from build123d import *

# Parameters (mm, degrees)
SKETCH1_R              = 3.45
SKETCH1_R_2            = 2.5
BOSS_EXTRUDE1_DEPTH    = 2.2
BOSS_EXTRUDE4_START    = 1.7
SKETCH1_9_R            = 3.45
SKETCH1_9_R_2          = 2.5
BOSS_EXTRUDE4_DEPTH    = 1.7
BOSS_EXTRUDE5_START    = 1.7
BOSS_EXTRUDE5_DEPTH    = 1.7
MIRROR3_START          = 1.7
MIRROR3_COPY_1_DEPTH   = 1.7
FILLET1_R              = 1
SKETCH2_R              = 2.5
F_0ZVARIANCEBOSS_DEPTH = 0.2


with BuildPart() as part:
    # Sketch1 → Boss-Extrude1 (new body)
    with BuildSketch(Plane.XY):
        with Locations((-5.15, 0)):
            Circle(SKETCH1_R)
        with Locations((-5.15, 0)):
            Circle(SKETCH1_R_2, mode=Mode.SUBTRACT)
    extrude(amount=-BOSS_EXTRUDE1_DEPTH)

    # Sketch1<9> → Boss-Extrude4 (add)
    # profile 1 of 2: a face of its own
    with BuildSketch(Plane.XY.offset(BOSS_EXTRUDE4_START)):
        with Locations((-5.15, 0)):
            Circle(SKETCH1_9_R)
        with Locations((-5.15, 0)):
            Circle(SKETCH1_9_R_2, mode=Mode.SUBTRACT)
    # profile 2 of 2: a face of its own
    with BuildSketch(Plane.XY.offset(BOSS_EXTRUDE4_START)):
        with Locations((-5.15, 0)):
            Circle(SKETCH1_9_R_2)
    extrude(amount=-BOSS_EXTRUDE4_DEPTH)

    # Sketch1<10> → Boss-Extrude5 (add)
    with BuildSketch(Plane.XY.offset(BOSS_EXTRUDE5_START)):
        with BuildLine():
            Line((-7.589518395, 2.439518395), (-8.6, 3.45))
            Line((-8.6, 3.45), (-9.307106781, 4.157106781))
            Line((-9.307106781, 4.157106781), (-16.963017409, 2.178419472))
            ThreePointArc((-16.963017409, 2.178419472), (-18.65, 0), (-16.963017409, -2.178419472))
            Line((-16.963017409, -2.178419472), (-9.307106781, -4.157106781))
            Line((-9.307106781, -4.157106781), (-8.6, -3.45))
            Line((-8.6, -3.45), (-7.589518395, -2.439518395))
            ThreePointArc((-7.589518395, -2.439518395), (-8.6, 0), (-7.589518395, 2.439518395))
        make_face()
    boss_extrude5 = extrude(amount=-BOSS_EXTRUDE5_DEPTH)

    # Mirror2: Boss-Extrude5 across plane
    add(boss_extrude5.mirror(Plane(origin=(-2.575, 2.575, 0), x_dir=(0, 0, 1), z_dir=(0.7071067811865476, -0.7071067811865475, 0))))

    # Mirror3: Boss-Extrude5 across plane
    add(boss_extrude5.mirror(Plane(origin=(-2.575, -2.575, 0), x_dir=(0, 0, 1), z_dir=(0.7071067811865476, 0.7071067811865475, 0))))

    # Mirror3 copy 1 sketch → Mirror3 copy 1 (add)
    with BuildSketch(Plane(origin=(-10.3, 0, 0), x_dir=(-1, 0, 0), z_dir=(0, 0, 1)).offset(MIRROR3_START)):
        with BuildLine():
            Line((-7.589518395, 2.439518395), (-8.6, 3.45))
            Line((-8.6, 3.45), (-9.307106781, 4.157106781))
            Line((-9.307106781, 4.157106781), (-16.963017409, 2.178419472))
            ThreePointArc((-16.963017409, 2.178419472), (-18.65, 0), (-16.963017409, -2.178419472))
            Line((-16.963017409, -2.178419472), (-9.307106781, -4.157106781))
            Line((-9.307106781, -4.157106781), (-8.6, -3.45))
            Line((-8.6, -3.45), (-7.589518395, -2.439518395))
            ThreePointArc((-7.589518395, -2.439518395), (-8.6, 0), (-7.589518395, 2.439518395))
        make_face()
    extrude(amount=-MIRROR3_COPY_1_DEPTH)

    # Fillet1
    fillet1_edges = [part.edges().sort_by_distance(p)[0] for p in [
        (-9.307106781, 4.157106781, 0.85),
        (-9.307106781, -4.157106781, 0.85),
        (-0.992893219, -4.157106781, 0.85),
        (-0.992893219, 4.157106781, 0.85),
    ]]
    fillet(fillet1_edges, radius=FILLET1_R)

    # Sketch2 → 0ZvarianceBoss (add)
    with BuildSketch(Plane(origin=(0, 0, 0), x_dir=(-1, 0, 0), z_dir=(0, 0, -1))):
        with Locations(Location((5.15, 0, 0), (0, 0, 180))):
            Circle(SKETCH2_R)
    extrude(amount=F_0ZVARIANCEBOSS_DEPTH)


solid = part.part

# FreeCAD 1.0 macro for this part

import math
import FreeCAD as App
import Part
import Sketcher


def edges_at(feature, points):
    """Names of the edges that pass closest to the given points."""
    edges = feature.Shape.Edges
    near = lambda p: min(range(len(edges)), key=lambda i: edges[i].distToShape(Part.Vertex(*p))[0])
    return sorted({f"Edge{near(p) + 1}" for p in points})

doc = App.newDocument("Part")
body = doc.addObject("PartDesign::Body", "Body")

# Sketch on XY plane
sketch1 = body.newObject("Sketcher::SketchObject", "Sketch")
sketch1.AttachmentSupport = (doc.getObject("XY_Plane"), [""])
sketch1.MapMode = "FlatFace"
sketch1.addGeometry([
    Part.Circle(App.Vector(-5.2, 0, 0), App.Vector(0, 0, 1), 3.5),
    Part.Circle(App.Vector(-5.2, 0, 0), App.Vector(0, 0, 1), 2.5),
], False)
sketch1.addConstraint([
    Sketcher.Constraint("Coincident", 1, 3, 0, 3),
    Sketcher.Constraint("PointOnObject", 0, 3, -1),
    Sketcher.Constraint("Diameter", 1, 5.0),
    Sketcher.Constraint("Diameter", 0, 6.9),
    Sketcher.Constraint("DistanceX", 0, 3, -1, 1, 5.15),
])
pad1 = body.newObject("PartDesign::Pad", "Pad")
pad1.Profile = sketch1
pad1.Length = 2.2
pad1.Reversed = True

# Sketch on XY plane
sketch2 = body.newObject("Sketcher::SketchObject", "Sketch001")
sketch2.AttachmentSupport = (doc.getObject("XY_Plane"), [""])
sketch2.MapMode = "FlatFace"
sketch2.AttachmentOffset = App.Placement(App.Vector(0, 0, 1.7), App.Rotation())
sketch2.addGeometry(Part.Circle(App.Vector(-5.2, 0, 0), App.Vector(0, 0, 1), 3.5), False)
sketch2.addConstraint([
    Sketcher.Constraint("PointOnObject", 0, 3, -1),
    Sketcher.Constraint("Diameter", 0, 6.9),
    Sketcher.Constraint("DistanceX", 0, 3, -1, 1, 5.15),
])
pad2 = body.newObject("PartDesign::Pad", "Pad001")
pad2.Profile = sketch2
pad2.Length = 1.7
pad2.Reversed = True

# Sketch on XY plane
sketch3 = body.newObject("Sketcher::SketchObject", "Sketch002")
sketch3.AttachmentSupport = (doc.getObject("XY_Plane"), [""])
sketch3.MapMode = "FlatFace"
sketch3.AttachmentOffset = App.Placement(App.Vector(0, 0, 1.7), App.Rotation())
sketch3.addGeometry([
    Part.LineSegment(App.Vector(-7.6, 2.4, 0), App.Vector(-9.3, 4.2, 0)),  # 0
    Part.LineSegment(App.Vector(-9.3, 4.2, 0), App.Vector(-17, 2.2, 0)),  # 1
    Part.ArcOfCircle(Part.Circle(App.Vector(-16.4, 0, 0), App.Vector(0, 0, 1), 2.2), math.radians(104), math.radians(256)),  # 2
    Part.LineSegment(App.Vector(-17, -2.2, 0), App.Vector(-9.3, -4.2, 0)),  # 3
    Part.LineSegment(App.Vector(-9.3, -4.2, 0), App.Vector(-7.6, -2.4, 0)),  # 4
    Part.ArcOfCircle(Part.Circle(App.Vector(-5.2, 0, 0), App.Vector(0, 0, 1), 3.5), math.radians(135), math.radians(225)),  # 5
], False)
sketch3.addConstraint([
    Sketcher.Constraint("Coincident", 0, 2, 1, 1),
    Sketcher.Constraint("Tangent", 1, 2, 2, 1),
    Sketcher.Constraint("Tangent", 2, 2, 3, 1),
    Sketcher.Constraint("Coincident", 3, 2, 4, 1),
    Sketcher.Constraint("Coincident", 4, 2, 5, 2),
    Sketcher.Constraint("Coincident", 5, 1, 0, 1),
    Sketcher.Constraint("Symmetric", 1, 2, 2, 2, -1),
    Sketcher.Constraint("Symmetric", 4, 2, 5, 1, -1),
    Sketcher.Constraint("Perpendicular", 0, 4),
    Sketcher.Constraint("Vertical", 0, 2, 3, 2),
    Sketcher.Constraint("Radius", 2, 2.25),
    Sketcher.Constraint("Radius", 5, 3.45),
    Sketcher.Constraint("DistanceX", 2, 3, -1, 1, 16.4),
    Sketcher.Constraint("DistanceX", 5, 3, -1, 1, 5.15),
    Sketcher.Constraint("DistanceX", 2, 2, 4, 2, 9.373499),
    Sketcher.Constraint("DistanceY", 4, 2, 2, 2, 0.261099),
])
pad3 = body.newObject("PartDesign::Pad", "Pad002")
pad3.Profile = sketch3
pad3.Length = 1.7
pad3.Reversed = True
doc.recompute()

datumplane = body.newObject("PartDesign::Plane", "DatumPlane")
datumplane.Placement = App.Placement(App.Vector(-2.575, 2.575, 0), App.Rotation(App.Vector(-0.707106781, -0.707106781, 0), App.Vector(0, 0, -1), App.Vector(0.707106781, -0.707106781, 0), "ZXY"))
mirrored = body.newObject("PartDesign::Mirrored", "Mirrored")
mirrored.Originals = [pad3]
mirrored.MirrorPlane = (datumplane, [""])
body.Tip = mirrored
doc.recompute()

datumplane2 = body.newObject("PartDesign::Plane", "DatumPlane001")
datumplane2.Placement = App.Placement(App.Vector(-2.575, -2.575, 0), App.Rotation(App.Vector(0.707106781, -0.707106781, 0), App.Vector(0, 0, -1), App.Vector(0.707106781, 0.707106781, 0), "ZXY"))
mirrored2 = body.newObject("PartDesign::Mirrored", "Mirrored001")
mirrored2.Originals = [pad3]
mirrored2.MirrorPlane = (datumplane2, [""])
body.Tip = mirrored2

# Sketch on XY plane
sketch4 = body.newObject("Sketcher::SketchObject", "Sketch003")
sketch4.AttachmentSupport = (doc.getObject("XY_Plane"), [""])
sketch4.MapMode = "FlatFace"
sketch4.AttachmentOffset = App.Placement(App.Vector(0, 0, 1.7), App.Rotation())
sketch4.addGeometry([
    Part.LineSegment(App.Vector(-2.7, -2.4, 0), App.Vector(-1, -4.2, 0)),  # 0
    Part.LineSegment(App.Vector(-1, -4.2, 0), App.Vector(6.7, -2.2, 0)),  # 1
    Part.ArcOfCircle(Part.Circle(App.Vector(6.1, 0, 0), App.Vector(0, 0, 1), 2.2), math.radians(-76), math.radians(76)),  # 2
    Part.LineSegment(App.Vector(6.7, 2.2, 0), App.Vector(-1, 4.2, 0)),  # 3
    Part.LineSegment(App.Vector(-1, 4.2, 0), App.Vector(-2.7, 2.4, 0)),  # 4
    Part.ArcOfCircle(Part.Circle(App.Vector(-5.2, 0, 0), App.Vector(0, 0, 1), 3.5), math.radians(-45), math.radians(45)),  # 5
], False)
sketch4.addConstraint([
    Sketcher.Constraint("Coincident", 0, 2, 1, 1),
    Sketcher.Constraint("Tangent", 1, 2, 2, 1),
    Sketcher.Constraint("Tangent", 2, 2, 3, 1),
    Sketcher.Constraint("Coincident", 3, 2, 4, 1),
    Sketcher.Constraint("Coincident", 4, 2, 5, 2),
    Sketcher.Constraint("Coincident", 5, 1, 0, 1),
    Sketcher.Constraint("Symmetric", 1, 2, 2, 2, -1),
    Sketcher.Constraint("Symmetric", 4, 2, 5, 1, -1),
    Sketcher.Constraint("Perpendicular", 0, 4),
    Sketcher.Constraint("Vertical", 0, 2, 3, 2),
    Sketcher.Constraint("Radius", 2, 2.25),
    Sketcher.Constraint("Radius", 5, 3.45),
    Sketcher.Constraint("DistanceX", -1, 1, 2, 3, 6.1),
    Sketcher.Constraint("DistanceX", 5, 3, -1, 1, 5.15),
    Sketcher.Constraint("DistanceX", 4, 2, 2, 2, 9.373499),
    Sketcher.Constraint("DistanceY", 2, 2, 4, 2, 0.261099),
])
pad4 = body.newObject("PartDesign::Pad", "Pad003")
pad4.Profile = sketch4
pad4.Length = 1.7
pad4.Reversed = True
doc.recompute()

fillet = body.newObject("PartDesign::Fillet", "Fillet")
fillet.Base = (pad4, edges_at(pad4, [
    (-9.307, 4.157, 0.85),
    (-9.307, -4.157, 0.85),
    (-0.993, -4.157, 0.85),
    (-0.993, 4.157, 0.85),
]))
fillet.Radius = 1

# Sketch on XY plane
sketch5 = body.newObject("Sketcher::SketchObject", "Sketch004")
sketch5.AttachmentSupport = (doc.getObject("XY_Plane"), [""])
sketch5.MapMode = "FlatFace"
sketch5.addGeometry(Part.Circle(App.Vector(-5.2, 0, 0), App.Vector(0, 0, 1), 2.5), False)
sketch5.addConstraint([
    Sketcher.Constraint("PointOnObject", 0, 3, -1),
    Sketcher.Constraint("Diameter", 0, 5.0),
    Sketcher.Constraint("DistanceX", 0, 3, -1, 1, 5.15),
])
pad5 = body.newObject("PartDesign::Pad", "Pad004")
pad5.Profile = sketch5
pad5.Length = 0.2
pad5.Reversed = True

doc.recompute()
